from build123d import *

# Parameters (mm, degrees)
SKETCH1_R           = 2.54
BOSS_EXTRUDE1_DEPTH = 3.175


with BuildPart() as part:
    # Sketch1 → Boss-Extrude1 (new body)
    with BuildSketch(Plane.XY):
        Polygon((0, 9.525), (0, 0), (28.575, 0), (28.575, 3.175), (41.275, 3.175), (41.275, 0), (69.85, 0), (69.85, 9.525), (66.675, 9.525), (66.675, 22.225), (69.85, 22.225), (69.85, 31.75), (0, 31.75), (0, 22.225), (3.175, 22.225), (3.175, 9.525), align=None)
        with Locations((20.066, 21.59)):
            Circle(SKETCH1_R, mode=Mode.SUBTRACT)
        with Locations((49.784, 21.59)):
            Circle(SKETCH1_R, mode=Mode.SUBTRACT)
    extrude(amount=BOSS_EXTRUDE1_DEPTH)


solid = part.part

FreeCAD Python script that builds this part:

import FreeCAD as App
import Part
import Sketcher

V = App.Vector
Q = App.Units.Quantity


def add_polygon(sketch, points):
    """Adds a closed chain of lines whose ends are joined by coincident constraints."""
    first, n = sketch.GeometryCount, len(points)
    for a, b in zip(points, points[1:] + points[:1]):
        sketch.addGeometry(Part.LineSegment(App.Vector(*a, 0), App.Vector(*b, 0)), False)
    for i in range(n):
        sketch.addConstraint(Sketcher.Constraint("Coincident", first + i, 2, first + (i + 1) % n, 1))

doc = App.newDocument("Part")
body = doc.addObject("PartDesign::Body", "Body")

# Sketch on XY plane
sketch1 = doc.addObject("Sketcher::SketchObject", "Sketch")
body.addObject(sketch1)
sketch1.AttachmentSupport = (doc.XY_Plane, [""])
sketch1.MapMode = "FlatFace"
add_polygon(sketch1, [(0, 9.5), (0, 0), (28.6, 0), (28.6, 3.2), (41.3, 3.2), (41.3, 0), (69.8, 0), (69.8, 9.5), (66.7, 9.5), (66.7, 22.2), (69.8, 22.2), (69.8, 31.8), (0, 31.8), (0, 22.2), (3.2, 22.2), (3.2, 9.5)])  # lines 0-15
sketch1.addGeometry(Part.Circle(V(20.1, 21.6, 0), V(0, 0, 1), 2.5), False)  # 16
sketch1.addGeometry(Part.Circle(V(49.8, 21.6, 0), V(0, 0, 1), 2.5), False)  # 17
sketch1.addConstraint([
    Sketcher.Constraint("Vertical", 0),
    Sketcher.Constraint("Horizontal", 1),
    Sketcher.Constraint("Vertical", 2),
    Sketcher.Constraint("Horizontal", 3),
    Sketcher.Constraint("Vertical", 4),
    Sketcher.Constraint("Horizontal", 5),
    Sketcher.Constraint("Vertical", 6),
    Sketcher.Constraint("Horizontal", 7),
    Sketcher.Constraint("Vertical", 8),
    Sketcher.Constraint("Horizontal", 9),
    Sketcher.Constraint("Vertical", 10),
    Sketcher.Constraint("Horizontal", 11),
    Sketcher.Constraint("Vertical", 12),
    Sketcher.Constraint("Horizontal", 13),
    Sketcher.Constraint("Vertical", 14),
    Sketcher.Constraint("Horizontal", 15),
    Sketcher.Constraint("Coincident", 0, 2, -1, 1),
    Sketcher.Constraint("Equal", 16, 17),
    Sketcher.Constraint("PointOnObject", 4, 2, -1),
    Sketcher.Constraint("PointOnObject", 11, 2, -2),
    Sketcher.Constraint("Horizontal", 16, 3, 17, 3),
    Sketcher.Constraint("Horizontal", 9, 2, 12, 2),
    Sketcher.Constraint("Horizontal", 7, 2, 14, 2),
    Sketcher.Constraint("Vertical", 6, 2, 9, 2),
    Sketcher.Constraint("Equal", 1, 5),
    Sketcher.Constraint("Equal", 9, 13),
    Sketcher.Constraint("Equal", 15, 2),
    Sketcher.Constraint("Equal", 3, 8),
    Sketcher.Constraint("Equal", 6, 10),
    Sketcher.Constraint("Diameter", 16, Q("0.2 in")),
    Sketcher.Constraint("DistanceX", 3, 1, 3, 2, Q("0.5 in")),
    Sketcher.Constraint("DistanceX", 3, 2, 7, 2, Q("1 in")),
    Sketcher.Constraint("DistanceX", 11, 2, 11, 1, Q("2.75 in")),
    Sketcher.Constraint("DistanceY", 17, 3, 10, 2, Q("0.4 in")),
    Sketcher.Constraint("DistanceY", 0, 2, 0, 1, Q("0.375 in")),
    Sketcher.Constraint("DistanceX", -1, 1, 16, 3, Q("0.79 in")),
    Sketcher.Constraint("DistanceX", -1, 1, 17, 3, Q("1.96 in")),
])
pad1 = doc.addObject("PartDesign::Pad", "Pad")
body.addObject(pad1)
pad1.Profile = sketch1
pad1.Length = Q("0.125 in")

doc.recompute()
